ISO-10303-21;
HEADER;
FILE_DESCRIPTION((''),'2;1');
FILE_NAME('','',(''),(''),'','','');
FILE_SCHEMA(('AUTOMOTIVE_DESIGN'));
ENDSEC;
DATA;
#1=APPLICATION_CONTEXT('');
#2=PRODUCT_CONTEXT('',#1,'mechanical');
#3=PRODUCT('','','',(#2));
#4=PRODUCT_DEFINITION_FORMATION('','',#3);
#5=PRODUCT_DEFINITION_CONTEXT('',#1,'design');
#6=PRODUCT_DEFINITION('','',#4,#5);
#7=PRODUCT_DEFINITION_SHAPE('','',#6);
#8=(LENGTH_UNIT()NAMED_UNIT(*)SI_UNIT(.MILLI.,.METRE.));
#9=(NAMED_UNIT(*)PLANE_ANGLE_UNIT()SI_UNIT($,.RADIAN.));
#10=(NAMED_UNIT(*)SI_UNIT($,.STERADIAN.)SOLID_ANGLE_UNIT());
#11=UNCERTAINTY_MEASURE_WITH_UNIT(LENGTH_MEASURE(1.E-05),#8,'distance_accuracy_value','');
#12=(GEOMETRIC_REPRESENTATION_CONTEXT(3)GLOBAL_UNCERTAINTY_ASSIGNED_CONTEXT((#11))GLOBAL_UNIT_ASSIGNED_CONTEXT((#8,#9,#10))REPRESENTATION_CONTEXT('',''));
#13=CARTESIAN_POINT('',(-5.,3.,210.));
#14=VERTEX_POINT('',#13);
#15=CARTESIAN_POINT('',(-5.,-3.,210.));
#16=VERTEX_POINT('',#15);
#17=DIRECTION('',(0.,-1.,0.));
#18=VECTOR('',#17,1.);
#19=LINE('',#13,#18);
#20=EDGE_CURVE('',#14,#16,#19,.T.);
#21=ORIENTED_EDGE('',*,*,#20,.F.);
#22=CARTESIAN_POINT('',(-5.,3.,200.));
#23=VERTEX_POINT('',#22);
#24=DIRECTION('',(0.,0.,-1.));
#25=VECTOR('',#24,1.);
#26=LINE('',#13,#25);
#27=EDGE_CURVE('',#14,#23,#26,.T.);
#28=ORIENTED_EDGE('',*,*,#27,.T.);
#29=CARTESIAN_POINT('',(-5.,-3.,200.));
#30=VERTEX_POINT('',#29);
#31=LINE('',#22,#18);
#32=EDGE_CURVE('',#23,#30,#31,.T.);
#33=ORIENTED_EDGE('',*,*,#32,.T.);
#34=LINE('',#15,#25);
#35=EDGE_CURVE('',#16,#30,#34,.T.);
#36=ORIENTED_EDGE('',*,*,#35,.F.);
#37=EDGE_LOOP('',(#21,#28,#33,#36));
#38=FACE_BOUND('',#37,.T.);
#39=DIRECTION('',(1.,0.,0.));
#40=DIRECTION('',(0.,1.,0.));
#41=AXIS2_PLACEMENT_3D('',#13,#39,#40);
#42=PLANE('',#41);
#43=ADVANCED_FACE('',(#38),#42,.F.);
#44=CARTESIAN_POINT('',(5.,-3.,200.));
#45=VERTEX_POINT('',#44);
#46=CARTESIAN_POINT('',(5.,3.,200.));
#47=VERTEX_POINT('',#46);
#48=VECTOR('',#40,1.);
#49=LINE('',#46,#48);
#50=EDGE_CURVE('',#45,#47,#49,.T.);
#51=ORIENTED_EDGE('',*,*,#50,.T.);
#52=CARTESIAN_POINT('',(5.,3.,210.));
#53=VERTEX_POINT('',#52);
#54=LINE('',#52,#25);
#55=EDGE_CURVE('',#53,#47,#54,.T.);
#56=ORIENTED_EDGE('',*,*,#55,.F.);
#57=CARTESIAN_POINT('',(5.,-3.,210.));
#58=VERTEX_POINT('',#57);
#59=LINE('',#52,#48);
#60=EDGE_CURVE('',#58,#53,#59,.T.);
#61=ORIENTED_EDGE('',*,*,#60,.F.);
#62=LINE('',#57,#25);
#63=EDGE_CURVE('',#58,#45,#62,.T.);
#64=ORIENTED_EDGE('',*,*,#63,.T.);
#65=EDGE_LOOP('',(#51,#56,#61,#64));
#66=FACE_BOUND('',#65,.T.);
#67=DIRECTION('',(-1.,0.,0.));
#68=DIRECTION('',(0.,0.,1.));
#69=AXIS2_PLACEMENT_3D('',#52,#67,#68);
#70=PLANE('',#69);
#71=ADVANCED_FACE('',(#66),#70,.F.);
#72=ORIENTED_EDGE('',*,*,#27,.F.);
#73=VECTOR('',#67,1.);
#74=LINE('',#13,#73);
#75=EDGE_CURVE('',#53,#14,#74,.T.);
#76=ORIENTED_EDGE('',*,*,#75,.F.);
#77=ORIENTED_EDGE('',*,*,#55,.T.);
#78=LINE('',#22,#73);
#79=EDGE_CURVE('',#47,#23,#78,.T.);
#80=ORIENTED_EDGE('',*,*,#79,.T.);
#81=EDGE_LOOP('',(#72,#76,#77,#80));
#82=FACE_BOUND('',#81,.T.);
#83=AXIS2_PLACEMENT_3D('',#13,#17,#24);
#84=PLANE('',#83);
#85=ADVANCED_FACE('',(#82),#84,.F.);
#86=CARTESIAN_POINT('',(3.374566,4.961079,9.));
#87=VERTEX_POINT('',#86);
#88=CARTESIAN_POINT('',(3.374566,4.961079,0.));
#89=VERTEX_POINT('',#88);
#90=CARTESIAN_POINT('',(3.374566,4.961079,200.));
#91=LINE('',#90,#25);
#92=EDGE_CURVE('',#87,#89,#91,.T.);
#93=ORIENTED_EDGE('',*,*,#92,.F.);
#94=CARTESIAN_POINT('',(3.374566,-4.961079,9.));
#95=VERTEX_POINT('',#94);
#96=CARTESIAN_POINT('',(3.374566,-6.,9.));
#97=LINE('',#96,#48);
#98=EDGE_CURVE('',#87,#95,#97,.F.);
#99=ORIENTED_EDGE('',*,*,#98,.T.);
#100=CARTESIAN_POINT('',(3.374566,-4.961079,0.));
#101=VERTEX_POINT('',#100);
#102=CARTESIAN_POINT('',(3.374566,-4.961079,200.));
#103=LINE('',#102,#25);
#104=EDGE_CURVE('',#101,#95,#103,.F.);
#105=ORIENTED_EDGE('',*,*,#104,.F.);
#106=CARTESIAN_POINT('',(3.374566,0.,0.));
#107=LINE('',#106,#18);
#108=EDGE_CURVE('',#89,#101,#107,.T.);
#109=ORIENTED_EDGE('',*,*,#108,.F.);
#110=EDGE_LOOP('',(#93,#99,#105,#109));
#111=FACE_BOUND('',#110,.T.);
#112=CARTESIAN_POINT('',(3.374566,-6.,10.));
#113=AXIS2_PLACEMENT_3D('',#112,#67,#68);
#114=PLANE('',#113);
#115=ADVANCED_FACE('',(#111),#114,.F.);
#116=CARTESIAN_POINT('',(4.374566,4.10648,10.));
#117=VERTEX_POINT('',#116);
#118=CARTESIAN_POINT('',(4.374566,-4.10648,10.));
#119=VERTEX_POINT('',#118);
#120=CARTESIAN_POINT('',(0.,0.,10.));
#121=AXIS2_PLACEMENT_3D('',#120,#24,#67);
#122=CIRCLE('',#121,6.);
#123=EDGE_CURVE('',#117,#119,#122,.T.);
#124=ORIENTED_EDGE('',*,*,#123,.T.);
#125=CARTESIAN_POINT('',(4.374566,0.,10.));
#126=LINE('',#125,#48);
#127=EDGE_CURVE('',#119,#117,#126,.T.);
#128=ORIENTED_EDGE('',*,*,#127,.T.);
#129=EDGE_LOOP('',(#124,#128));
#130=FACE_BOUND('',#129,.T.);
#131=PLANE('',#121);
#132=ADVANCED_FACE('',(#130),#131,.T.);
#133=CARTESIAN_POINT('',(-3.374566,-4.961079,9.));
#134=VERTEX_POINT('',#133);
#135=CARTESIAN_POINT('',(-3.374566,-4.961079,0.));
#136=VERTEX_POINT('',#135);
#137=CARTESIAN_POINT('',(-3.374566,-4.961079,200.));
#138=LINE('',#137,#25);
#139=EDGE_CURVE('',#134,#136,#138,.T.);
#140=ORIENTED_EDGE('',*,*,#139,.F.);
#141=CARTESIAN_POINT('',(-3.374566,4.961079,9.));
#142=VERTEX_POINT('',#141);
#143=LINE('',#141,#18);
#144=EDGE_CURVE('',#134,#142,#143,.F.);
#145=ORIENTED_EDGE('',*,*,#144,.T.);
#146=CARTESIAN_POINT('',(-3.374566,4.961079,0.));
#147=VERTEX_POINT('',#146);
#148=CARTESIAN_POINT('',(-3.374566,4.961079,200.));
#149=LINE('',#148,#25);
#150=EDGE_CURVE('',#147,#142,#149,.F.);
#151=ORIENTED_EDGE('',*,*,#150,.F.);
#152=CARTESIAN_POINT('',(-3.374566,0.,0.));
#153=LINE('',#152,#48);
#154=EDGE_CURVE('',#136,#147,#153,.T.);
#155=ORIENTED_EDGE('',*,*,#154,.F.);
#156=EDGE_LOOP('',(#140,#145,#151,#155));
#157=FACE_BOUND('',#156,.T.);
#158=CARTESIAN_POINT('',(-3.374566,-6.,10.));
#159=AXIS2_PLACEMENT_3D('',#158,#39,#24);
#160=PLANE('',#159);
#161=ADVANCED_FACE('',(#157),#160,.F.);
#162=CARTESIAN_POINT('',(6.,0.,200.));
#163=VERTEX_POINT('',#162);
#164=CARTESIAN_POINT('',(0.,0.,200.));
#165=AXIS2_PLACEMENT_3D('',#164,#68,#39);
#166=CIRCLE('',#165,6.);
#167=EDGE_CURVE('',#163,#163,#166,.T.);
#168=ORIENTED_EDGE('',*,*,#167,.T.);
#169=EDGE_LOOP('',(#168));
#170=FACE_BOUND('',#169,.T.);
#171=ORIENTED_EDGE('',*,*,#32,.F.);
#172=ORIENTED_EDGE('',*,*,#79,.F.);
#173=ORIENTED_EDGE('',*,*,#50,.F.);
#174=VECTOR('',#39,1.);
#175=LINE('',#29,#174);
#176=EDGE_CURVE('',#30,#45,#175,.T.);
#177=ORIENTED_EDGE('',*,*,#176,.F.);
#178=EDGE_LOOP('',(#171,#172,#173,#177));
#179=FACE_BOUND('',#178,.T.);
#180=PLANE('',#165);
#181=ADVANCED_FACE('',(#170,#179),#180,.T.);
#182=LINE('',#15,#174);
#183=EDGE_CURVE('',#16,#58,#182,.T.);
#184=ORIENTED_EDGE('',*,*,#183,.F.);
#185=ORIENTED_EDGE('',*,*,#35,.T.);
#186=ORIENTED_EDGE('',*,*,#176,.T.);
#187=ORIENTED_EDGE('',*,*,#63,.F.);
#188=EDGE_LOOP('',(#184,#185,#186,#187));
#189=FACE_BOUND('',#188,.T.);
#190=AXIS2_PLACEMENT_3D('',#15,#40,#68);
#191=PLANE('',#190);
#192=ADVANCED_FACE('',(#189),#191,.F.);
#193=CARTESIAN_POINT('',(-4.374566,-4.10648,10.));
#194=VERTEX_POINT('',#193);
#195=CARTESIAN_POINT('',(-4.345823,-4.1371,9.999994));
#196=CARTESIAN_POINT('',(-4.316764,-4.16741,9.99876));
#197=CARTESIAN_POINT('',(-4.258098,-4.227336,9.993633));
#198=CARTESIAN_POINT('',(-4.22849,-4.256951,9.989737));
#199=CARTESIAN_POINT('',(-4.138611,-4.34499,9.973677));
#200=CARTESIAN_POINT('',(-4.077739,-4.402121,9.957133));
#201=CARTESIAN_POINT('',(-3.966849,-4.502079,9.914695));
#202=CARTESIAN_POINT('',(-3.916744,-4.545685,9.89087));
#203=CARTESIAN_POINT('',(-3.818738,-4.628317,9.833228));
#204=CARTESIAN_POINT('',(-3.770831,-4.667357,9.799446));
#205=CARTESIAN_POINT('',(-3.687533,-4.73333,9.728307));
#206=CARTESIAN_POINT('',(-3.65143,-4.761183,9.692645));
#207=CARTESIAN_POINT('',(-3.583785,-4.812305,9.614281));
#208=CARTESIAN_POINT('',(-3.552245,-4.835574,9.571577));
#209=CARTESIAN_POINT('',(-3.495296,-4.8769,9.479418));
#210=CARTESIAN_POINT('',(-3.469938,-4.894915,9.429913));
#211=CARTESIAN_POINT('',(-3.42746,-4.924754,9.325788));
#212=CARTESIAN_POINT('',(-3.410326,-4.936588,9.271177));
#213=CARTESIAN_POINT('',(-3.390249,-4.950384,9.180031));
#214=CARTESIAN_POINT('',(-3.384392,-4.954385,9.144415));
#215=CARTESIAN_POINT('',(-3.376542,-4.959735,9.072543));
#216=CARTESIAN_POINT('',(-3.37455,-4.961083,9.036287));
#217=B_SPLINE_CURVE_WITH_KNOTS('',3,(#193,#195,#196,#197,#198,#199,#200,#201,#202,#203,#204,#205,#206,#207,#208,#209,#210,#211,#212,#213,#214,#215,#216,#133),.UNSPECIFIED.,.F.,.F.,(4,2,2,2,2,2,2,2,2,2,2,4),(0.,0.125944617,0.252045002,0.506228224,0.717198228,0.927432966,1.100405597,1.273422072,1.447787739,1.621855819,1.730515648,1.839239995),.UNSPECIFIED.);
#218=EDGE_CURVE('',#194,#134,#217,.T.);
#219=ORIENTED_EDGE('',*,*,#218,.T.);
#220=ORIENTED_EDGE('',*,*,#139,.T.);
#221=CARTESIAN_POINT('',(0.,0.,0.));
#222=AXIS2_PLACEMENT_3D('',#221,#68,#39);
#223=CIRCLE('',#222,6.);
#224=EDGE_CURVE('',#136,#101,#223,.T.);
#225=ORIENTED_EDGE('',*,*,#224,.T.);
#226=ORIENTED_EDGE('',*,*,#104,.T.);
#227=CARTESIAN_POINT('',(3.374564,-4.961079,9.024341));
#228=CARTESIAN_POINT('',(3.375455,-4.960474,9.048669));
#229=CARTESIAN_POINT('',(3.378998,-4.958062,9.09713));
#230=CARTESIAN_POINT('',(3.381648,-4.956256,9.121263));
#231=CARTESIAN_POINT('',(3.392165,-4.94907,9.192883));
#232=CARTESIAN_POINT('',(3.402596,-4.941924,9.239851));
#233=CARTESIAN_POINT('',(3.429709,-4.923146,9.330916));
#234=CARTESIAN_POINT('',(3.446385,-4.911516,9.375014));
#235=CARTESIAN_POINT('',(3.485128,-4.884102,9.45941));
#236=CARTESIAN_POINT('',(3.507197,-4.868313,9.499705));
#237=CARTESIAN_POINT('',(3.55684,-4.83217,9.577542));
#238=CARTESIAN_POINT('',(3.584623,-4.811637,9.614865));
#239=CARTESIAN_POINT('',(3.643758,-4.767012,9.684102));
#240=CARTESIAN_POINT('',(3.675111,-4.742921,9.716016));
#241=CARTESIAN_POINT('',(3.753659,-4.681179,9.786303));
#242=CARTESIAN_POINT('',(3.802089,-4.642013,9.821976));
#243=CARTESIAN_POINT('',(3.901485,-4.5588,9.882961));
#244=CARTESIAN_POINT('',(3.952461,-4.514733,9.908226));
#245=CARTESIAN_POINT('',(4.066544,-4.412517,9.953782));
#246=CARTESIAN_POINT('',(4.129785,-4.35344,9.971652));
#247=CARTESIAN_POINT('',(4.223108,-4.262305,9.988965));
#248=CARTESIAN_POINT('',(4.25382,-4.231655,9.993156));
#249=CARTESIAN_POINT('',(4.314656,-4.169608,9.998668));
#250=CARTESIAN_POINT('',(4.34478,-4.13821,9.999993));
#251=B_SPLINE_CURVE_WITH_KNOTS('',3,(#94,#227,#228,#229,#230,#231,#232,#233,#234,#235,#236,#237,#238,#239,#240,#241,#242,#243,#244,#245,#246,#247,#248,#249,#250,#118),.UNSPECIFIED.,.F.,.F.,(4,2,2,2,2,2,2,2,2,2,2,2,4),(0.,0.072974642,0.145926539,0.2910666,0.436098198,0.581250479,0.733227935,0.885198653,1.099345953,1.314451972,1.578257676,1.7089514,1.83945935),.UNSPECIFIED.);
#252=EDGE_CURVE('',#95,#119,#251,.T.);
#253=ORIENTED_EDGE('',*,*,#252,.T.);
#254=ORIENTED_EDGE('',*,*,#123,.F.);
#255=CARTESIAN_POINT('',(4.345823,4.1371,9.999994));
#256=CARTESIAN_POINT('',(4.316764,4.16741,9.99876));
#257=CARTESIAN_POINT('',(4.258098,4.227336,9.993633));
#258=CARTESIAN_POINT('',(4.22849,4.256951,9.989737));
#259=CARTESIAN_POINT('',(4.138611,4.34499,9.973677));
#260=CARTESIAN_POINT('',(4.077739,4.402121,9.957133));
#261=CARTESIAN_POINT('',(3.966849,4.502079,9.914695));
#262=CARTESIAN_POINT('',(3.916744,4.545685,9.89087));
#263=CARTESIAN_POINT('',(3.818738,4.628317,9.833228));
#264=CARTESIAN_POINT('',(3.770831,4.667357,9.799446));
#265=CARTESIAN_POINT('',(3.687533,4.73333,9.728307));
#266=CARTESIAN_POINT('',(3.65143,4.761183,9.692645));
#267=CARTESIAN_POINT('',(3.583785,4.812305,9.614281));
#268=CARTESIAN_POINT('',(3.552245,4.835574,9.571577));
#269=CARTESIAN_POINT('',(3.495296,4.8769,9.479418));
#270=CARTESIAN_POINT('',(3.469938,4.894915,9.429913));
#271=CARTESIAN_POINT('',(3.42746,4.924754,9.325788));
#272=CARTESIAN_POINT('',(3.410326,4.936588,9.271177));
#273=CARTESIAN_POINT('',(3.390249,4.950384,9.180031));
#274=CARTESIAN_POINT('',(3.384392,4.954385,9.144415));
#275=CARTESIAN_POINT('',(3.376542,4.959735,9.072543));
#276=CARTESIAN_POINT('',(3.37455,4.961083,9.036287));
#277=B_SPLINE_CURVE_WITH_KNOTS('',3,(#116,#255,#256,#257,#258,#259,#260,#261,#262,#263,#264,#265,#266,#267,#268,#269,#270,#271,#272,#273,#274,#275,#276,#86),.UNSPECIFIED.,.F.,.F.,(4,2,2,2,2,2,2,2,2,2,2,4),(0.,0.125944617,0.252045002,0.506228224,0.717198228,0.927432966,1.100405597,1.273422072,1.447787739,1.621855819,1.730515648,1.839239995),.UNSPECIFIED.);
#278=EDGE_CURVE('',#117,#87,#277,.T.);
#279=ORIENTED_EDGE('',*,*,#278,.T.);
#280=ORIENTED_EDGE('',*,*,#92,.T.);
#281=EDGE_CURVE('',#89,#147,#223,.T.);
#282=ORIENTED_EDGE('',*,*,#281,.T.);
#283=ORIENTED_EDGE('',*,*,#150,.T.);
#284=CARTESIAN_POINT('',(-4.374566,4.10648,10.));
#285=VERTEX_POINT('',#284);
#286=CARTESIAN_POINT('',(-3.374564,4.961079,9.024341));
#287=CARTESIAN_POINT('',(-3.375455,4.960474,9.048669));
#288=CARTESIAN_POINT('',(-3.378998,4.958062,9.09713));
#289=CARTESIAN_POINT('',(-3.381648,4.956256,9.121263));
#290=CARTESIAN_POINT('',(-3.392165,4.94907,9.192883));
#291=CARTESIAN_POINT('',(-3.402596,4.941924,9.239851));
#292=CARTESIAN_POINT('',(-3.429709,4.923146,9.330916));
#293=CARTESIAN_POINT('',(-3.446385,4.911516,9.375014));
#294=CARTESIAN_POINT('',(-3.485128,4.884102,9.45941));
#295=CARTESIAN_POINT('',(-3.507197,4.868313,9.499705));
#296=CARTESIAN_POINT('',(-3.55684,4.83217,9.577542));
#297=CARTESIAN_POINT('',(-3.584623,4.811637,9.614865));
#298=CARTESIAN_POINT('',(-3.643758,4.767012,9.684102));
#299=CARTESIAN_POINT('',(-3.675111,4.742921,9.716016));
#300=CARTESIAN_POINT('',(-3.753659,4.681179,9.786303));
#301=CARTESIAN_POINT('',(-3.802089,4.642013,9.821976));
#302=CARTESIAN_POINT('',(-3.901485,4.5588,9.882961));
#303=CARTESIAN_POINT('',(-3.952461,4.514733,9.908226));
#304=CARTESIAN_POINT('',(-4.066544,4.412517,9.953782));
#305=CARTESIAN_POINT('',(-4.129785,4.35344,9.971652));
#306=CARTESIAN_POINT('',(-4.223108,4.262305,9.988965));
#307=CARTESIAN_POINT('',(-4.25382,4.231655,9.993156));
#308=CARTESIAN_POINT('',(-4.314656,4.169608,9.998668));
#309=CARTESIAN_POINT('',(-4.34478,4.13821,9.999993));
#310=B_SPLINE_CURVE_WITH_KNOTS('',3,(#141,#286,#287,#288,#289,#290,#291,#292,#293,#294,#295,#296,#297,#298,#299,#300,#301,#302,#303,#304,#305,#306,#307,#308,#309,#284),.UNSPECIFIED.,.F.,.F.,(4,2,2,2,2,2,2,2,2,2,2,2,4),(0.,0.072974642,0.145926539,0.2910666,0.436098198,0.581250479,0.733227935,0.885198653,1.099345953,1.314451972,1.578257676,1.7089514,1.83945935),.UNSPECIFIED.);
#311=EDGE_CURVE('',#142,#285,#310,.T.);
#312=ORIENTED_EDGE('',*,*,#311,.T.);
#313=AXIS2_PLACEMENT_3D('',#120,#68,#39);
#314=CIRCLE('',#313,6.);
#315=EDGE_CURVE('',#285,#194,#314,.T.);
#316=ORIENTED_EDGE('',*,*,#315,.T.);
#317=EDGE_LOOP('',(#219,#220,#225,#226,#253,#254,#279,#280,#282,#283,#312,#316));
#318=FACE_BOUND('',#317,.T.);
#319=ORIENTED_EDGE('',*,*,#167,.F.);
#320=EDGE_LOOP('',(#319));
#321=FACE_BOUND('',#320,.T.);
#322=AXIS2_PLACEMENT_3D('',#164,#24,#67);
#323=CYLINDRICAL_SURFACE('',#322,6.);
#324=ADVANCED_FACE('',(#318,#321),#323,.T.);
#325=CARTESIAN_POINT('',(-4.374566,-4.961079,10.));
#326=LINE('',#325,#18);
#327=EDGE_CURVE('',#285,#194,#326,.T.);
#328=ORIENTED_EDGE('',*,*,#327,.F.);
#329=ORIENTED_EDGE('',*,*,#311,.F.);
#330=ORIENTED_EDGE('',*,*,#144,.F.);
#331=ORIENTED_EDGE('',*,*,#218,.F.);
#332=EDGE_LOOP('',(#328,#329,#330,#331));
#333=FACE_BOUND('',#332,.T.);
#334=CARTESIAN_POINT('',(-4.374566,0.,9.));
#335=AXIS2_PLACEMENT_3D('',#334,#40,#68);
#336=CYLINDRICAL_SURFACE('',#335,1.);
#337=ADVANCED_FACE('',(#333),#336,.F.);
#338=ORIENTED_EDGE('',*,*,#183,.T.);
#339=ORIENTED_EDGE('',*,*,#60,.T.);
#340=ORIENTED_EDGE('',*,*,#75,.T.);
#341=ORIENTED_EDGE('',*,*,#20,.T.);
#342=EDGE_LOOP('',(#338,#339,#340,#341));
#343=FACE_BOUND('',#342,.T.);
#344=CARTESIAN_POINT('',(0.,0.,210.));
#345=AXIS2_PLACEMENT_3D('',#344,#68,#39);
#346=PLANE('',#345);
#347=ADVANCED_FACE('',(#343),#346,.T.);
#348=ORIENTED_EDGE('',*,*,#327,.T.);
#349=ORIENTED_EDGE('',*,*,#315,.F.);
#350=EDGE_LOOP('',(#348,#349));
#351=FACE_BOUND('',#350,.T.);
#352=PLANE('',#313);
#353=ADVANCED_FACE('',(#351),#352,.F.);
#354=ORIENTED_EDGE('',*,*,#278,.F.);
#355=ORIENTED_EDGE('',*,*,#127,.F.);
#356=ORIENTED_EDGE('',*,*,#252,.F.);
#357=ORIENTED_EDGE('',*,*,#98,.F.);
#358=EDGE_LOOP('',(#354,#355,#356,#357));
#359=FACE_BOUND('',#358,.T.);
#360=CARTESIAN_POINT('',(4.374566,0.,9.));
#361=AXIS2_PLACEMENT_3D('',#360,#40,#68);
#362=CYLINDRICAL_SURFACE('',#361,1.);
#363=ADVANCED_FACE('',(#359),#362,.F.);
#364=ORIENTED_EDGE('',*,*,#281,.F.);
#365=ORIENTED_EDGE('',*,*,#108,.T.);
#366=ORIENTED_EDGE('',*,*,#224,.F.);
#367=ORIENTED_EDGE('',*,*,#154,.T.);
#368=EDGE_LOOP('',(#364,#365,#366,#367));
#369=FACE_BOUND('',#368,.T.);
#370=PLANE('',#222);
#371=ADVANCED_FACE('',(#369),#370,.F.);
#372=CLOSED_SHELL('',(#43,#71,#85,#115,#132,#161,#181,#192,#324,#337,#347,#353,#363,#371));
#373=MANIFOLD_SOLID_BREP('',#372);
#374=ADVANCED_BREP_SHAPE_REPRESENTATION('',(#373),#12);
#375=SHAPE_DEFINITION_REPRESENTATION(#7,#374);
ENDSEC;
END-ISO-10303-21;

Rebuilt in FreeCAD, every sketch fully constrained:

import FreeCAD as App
import Part
import Sketcher

V = App.Vector
Q = App.Units.Quantity


def edges_at(feature, points):
    """Names of the edges that pass closest to the given points."""
    edges = feature.Shape.Edges
    near = lambda p: min(range(len(edges)), key=lambda i: edges[i].distToShape(Part.Vertex(*p))[0])
    return sorted({f"Edge{near(p) + 1}" for p in points})


def add_polygon(sketch, points):
    """Adds a closed chain of lines whose ends are joined by coincident constraints."""
    first, n = sketch.GeometryCount, len(points)
    for a, b in zip(points, points[1:] + points[:1]):
        sketch.addGeometry(Part.LineSegment(App.Vector(*a, 0), App.Vector(*b, 0)), False)
    for i in range(n):
        sketch.addConstraint(Sketcher.Constraint("Coincident", first + i, 2, first + (i + 1) % n, 1))

doc = App.newDocument("Part")
body = doc.addObject("PartDesign::Body", "Body")

# Sketch on XY plane
sketch1 = body.newObject("Sketcher::SketchObject", "Sketch")
sketch1.AttachmentSupport = (doc.getObject("XY_Plane"), [""])
sketch1.MapMode = "FlatFace"
sketch1.addGeometry(Part.Circle(V(0, 0, 0), V(0, 0, 1), 6), False)
sketch1.addConstraint(Sketcher.Constraint("Coincident", 0, 3, -1, 1))
sketch1.addConstraint(Sketcher.Constraint("Diameter", 0, Q("12 mm")))
pad1 = body.newObject("PartDesign::Pad", "Pad")
pad1.Profile = sketch1
pad1.Length = 200

# Sketch on XY plane
sketch2 = body.newObject("Sketcher::SketchObject", "Sketch001")
sketch2.AttachmentSupport = (doc.getObject("XY_Plane"), [""])
sketch2.MapMode = "FlatFace"
sketch2.AttachmentOffset = App.Placement(V(0, 0, 200), App.Rotation())
add_polygon(sketch2, [(-5, 3), (-5, -3), (5, -3), (5, 3)])  # lines 0-3
sketch2.addConstraint(Sketcher.Constraint("Vertical", 0))
sketch2.addConstraint(Sketcher.Constraint("Horizontal", 1))
sketch2.addConstraint(Sketcher.Constraint("Vertical", 2))
sketch2.addConstraint(Sketcher.Constraint("Horizontal", 3))
sketch2.addConstraint(Sketcher.Constraint("Symmetric", 0, 2, 2, 2, -1, 1))
sketch2.addConstraint(Sketcher.Constraint("DistanceX", 1, 1, 1, 2, Q("10 mm")))
sketch2.addConstraint(Sketcher.Constraint("DistanceY", 0, 2, 0, 1, Q("6 mm")))
pad2 = body.newObject("PartDesign::Pad", "Pad001")
pad2.Profile = sketch2
pad2.Length = 10

# Sketch on XY plane
sketch3 = body.newObject("Sketcher::SketchObject", "Sketch002")
sketch3.AttachmentSupport = (doc.getObject("XY_Plane"), [""])
sketch3.MapMode = "FlatFace"
add_polygon(sketch3, [(-3.4, 6.7), (-3.4, -6), (-6, -6), (-6, 6.7)])  # lines 0-3
add_polygon(sketch3, [(6, 6.7), (6, -6), (3.4, -6), (3.4, 6.7)])  # lines 4-7
sketch3.addConstraint(Sketcher.Constraint("Vertical", 0))
sketch3.addConstraint(Sketcher.Constraint("Horizontal", 1))
sketch3.addConstraint(Sketcher.Constraint("Vertical", 2))
sketch3.addConstraint(Sketcher.Constraint("Horizontal", 3))
sketch3.addConstraint(Sketcher.Constraint("Vertical", 4))
sketch3.addConstraint(Sketcher.Constraint("Horizontal", 5))
sketch3.addConstraint(Sketcher.Constraint("Vertical", 6))
sketch3.addConstraint(Sketcher.Constraint("Horizontal", 7))
sketch3.addConstraint(Sketcher.Constraint("Symmetric", 1, 2, 4, 2, -2))
sketch3.addConstraint(Sketcher.Constraint("Symmetric", 3, 2, 6, 2, -2))
sketch3.addConstraint(Sketcher.Constraint("DistanceY", 0, 2, -1, 1, Q("6 mm")))
sketch3.addConstraint(Sketcher.Constraint("DistanceX", 1, 2, -1, 1, Q("6 mm")))
sketch3.addConstraint(Sketcher.Constraint("DistanceX", 1, 2, 1, 1, Q("2.625434 mm")))
sketch3.addConstraint(Sketcher.Constraint("DistanceY", 0, 2, 0, 1, Q("12.677495 mm")))
pocket1 = body.newObject("PartDesign::Pocket", "Pocket")
pocket1.Profile = sketch3
pocket1.Length = 10
pocket1.Reversed = True
doc.recompute()

fillet = body.newObject("PartDesign::Fillet", "Fillet")
fillet.Base = (pocket1, edges_at(pocket1, [(3.375, 0, 10)]))
fillet.Radius = 1
doc.recompute()

fillet2 = body.newObject("PartDesign::Fillet", "Fillet001")
fillet2.Base = (fillet, edges_at(fillet, [(-3.375, 0, 10)]))
fillet2.Radius = 1

doc.recompute()
